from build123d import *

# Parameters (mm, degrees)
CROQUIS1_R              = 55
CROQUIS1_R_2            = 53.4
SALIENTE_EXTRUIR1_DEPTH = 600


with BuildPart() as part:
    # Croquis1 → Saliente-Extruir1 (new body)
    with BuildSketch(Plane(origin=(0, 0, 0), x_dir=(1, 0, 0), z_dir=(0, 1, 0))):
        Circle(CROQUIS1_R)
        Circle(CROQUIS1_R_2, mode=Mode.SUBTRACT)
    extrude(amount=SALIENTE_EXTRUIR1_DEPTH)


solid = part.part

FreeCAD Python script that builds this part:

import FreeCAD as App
import Part
import Sketcher

V = App.Vector

doc = App.newDocument("Part")
body = doc.addObject("PartDesign::Body", "Body")

sketch1 = body.newObject("Sketcher::SketchObject", "Sketch")
sketch1.AttachmentSupport = (doc.getObject("XZ_Plane"), [""])
sketch1.MapMode = "FlatFace"
sketch1.addGeometry([
    Part.Circle(V(0, 0, 0), V(0, 0, 1), 55),
    Part.Circle(V(0, 0, 0), V(0, 0, 1), 53.4),
], False)
sketch1.addConstraint([
    Sketcher.Constraint("Coincident", 0, 3, -1, 1),
    Sketcher.Constraint("Coincident", 1, 3, -1, 1),
    Sketcher.Constraint("Diameter", 0, 110.0),
    Sketcher.Constraint("Diameter", 1, 106.8),
])
pad1 = body.newObject("PartDesign::Pad", "Pad")
pad1.Profile = sketch1
pad1.Length = 600
pad1.Reversed = True

doc.recompute()
